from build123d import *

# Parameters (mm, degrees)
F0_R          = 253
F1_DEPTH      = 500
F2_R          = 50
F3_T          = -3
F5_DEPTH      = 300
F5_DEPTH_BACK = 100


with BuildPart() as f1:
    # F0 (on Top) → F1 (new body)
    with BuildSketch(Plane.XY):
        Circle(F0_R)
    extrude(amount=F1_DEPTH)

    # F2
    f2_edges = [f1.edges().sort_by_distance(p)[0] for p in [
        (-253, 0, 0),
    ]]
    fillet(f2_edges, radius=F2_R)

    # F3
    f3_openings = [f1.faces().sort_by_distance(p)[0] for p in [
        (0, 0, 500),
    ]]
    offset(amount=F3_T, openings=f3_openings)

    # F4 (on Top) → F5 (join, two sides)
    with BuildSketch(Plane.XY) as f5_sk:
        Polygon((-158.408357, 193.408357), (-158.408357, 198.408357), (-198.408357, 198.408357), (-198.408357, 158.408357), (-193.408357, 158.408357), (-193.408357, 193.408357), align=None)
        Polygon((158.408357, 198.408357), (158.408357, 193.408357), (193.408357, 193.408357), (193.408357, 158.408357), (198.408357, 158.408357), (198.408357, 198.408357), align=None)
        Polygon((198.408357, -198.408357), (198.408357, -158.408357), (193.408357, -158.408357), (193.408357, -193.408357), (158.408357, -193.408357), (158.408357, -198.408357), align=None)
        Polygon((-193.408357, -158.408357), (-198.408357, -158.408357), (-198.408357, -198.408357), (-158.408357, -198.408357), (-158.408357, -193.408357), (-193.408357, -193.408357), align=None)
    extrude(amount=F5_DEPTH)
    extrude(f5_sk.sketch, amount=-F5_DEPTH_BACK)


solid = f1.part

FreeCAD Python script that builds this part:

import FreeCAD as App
import Part
import Sketcher
from FreeCAD import Vector


def edges_at(feature, points):
    """Names of the edges that pass closest to the given points."""
    edges = feature.Shape.Edges
    near = lambda p: min(range(len(edges)), key=lambda i: edges[i].distToShape(Part.Vertex(*p))[0])
    return sorted({f"Edge{near(p) + 1}" for p in points})


def faces_at(feature, points):
    """Names of the faces that lie closest to the given points."""
    faces = feature.Shape.Faces
    near = lambda p: min(range(len(faces)), key=lambda i: faces[i].distToShape(Part.Vertex(*p))[0])
    return sorted({f"Face{near(p) + 1}" for p in points})


def add_polygon(sketch, points):
    """Adds a closed chain of lines whose ends are joined by coincident constraints."""
    first, n = sketch.GeometryCount, len(points)
    for a, b in zip(points, points[1:] + points[:1]):
        sketch.addGeometry(Part.LineSegment(App.Vector(*a, 0), App.Vector(*b, 0)), False)
    for i in range(n):
        sketch.addConstraint(Sketcher.Constraint("Coincident", first + i, 2, first + (i + 1) % n, 1))

doc = App.newDocument("Part")
body = doc.addObject("PartDesign::Body", "Body")

sketch1 = body.newObject("Sketcher::SketchObject", "Sketch")
sketch1.AttachmentSupport = (doc.getObject("XY_Plane"), [""])
sketch1.MapMode = "FlatFace"
sketch1.addGeometry(Part.Circle(Vector(0, 0, 0), Vector(0, 0, 1), 253), False)
sketch1.addConstraint(Sketcher.Constraint("Coincident", 0, 3, -1, 1))
sketch1.addConstraint(Sketcher.Constraint("Diameter", 0, 506.0))
pad1 = body.newObject("PartDesign::Pad", "Pad")
pad1.Profile = sketch1
pad1.Length = 500
doc.recompute()

fillet = body.newObject("PartDesign::Fillet", "Fillet")
fillet.Base = (pad1, edges_at(pad1, [(-253, 0, 0)]))
fillet.Radius = 50
doc.recompute()

thickness = body.newObject("PartDesign::Thickness", "Thickness")
thickness.Base = (fillet, faces_at(fillet, [(0, 0, 500)]))
thickness.Value = 3
thickness.Reversed = True
thickness.Join = "Arc"

sketch2 = body.newObject("Sketcher::SketchObject", "Sketch001")
sketch2.AttachmentSupport = (doc.getObject("XY_Plane"), [""])
sketch2.MapMode = "FlatFace"
add_polygon(sketch2, [(-158, 193), (-158, 198), (-198, 198), (-198, 158), (-193, 158), (-193, 193)])
add_polygon(sketch2, [(158, 198), (158, 193), (193, 193), (193, 158), (198, 158), (198, 198)])
add_polygon(sketch2, [(198, -198), (198, -158), (193, -158), (193, -193), (158, -193), (158, -198)])
add_polygon(sketch2, [(-193, -158), (-198, -158), (-198, -198), (-158, -198), (-158, -193), (-193, -193)])
sketch2.addConstraint(Sketcher.Constraint("Vertical", 0))
sketch2.addConstraint(Sketcher.Constraint("Horizontal", 1))
sketch2.addConstraint(Sketcher.Constraint("Vertical", 2))
sketch2.addConstraint(Sketcher.Constraint("Horizontal", 3))
sketch2.addConstraint(Sketcher.Constraint("Vertical", 4))
sketch2.addConstraint(Sketcher.Constraint("Horizontal", 5))
sketch2.addConstraint(Sketcher.Constraint("Vertical", 6))
sketch2.addConstraint(Sketcher.Constraint("Horizontal", 7))
sketch2.addConstraint(Sketcher.Constraint("Vertical", 8))
sketch2.addConstraint(Sketcher.Constraint("Horizontal", 9))
sketch2.addConstraint(Sketcher.Constraint("Vertical", 10))
sketch2.addConstraint(Sketcher.Constraint("Horizontal", 11))
sketch2.addConstraint(Sketcher.Constraint("Vertical", 12))
sketch2.addConstraint(Sketcher.Constraint("Horizontal", 13))
sketch2.addConstraint(Sketcher.Constraint("Vertical", 14))
sketch2.addConstraint(Sketcher.Constraint("Horizontal", 15))
sketch2.addConstraint(Sketcher.Constraint("Vertical", 16))
sketch2.addConstraint(Sketcher.Constraint("Horizontal", 17))
sketch2.addConstraint(Sketcher.Constraint("Horizontal", 18))
sketch2.addConstraint(Sketcher.Constraint("Vertical", 19))
sketch2.addConstraint(Sketcher.Constraint("Horizontal", 20))
sketch2.addConstraint(Sketcher.Constraint("Vertical", 21))
sketch2.addConstraint(Sketcher.Constraint("Horizontal", 22))
sketch2.addConstraint(Sketcher.Constraint("Vertical", 23))
sketch2.addConstraint(Sketcher.Constraint("Symmetric", 2, 2, 12, 2, -1, 1))
sketch2.addConstraint(Sketcher.Constraint("Symmetric", 4, 2, 14, 2, -1, 1))
sketch2.addConstraint(Sketcher.Constraint("Symmetric", 0, 2, 16, 2, -1, 1))
sketch2.addConstraint(Sketcher.Constraint("Symmetric", 9, 2, 18, 2, -1, 1))
sketch2.addConstraint(Sketcher.Constraint("Symmetric", 11, 2, 20, 2, -1, 1))
sketch2.addConstraint(Sketcher.Constraint("Symmetric", 7, 2, 22, 2, -1, 1))
sketch2.addConstraint(Sketcher.Constraint("Symmetric", 5, 2, 6, 2, -2))
sketch2.addConstraint(Sketcher.Constraint("Symmetric", 3, 2, 8, 2, -2))
sketch2.addConstraint(Sketcher.Constraint("Symmetric", 1, 2, 10, 2, -2))
sketch2.addConstraint(Sketcher.Constraint("Equal", 18, 0))
sketch2.addConstraint(Sketcher.Constraint("Equal", 20, 2))
sketch2.addConstraint(Sketcher.Constraint("DistanceX", 1, 2, 1, 1, 40.0))
sketch2.addConstraint(Sketcher.Constraint("DistanceX", 3, 1, 3, 2, 5.0))
sketch2.addConstraint(Sketcher.Constraint("DistanceX", 0, 2, -1, 1, 158.408357))
sketch2.addConstraint(Sketcher.Constraint("DistanceY", -1, 1, 0, 2, 198.408357))
pad2 = body.newObject("PartDesign::Pad", "Pad001")
pad2.Profile = sketch2
pad2.Type = "TwoLengths"
pad2.Length = 300
pad2.Length2 = 100

doc.recompute()
